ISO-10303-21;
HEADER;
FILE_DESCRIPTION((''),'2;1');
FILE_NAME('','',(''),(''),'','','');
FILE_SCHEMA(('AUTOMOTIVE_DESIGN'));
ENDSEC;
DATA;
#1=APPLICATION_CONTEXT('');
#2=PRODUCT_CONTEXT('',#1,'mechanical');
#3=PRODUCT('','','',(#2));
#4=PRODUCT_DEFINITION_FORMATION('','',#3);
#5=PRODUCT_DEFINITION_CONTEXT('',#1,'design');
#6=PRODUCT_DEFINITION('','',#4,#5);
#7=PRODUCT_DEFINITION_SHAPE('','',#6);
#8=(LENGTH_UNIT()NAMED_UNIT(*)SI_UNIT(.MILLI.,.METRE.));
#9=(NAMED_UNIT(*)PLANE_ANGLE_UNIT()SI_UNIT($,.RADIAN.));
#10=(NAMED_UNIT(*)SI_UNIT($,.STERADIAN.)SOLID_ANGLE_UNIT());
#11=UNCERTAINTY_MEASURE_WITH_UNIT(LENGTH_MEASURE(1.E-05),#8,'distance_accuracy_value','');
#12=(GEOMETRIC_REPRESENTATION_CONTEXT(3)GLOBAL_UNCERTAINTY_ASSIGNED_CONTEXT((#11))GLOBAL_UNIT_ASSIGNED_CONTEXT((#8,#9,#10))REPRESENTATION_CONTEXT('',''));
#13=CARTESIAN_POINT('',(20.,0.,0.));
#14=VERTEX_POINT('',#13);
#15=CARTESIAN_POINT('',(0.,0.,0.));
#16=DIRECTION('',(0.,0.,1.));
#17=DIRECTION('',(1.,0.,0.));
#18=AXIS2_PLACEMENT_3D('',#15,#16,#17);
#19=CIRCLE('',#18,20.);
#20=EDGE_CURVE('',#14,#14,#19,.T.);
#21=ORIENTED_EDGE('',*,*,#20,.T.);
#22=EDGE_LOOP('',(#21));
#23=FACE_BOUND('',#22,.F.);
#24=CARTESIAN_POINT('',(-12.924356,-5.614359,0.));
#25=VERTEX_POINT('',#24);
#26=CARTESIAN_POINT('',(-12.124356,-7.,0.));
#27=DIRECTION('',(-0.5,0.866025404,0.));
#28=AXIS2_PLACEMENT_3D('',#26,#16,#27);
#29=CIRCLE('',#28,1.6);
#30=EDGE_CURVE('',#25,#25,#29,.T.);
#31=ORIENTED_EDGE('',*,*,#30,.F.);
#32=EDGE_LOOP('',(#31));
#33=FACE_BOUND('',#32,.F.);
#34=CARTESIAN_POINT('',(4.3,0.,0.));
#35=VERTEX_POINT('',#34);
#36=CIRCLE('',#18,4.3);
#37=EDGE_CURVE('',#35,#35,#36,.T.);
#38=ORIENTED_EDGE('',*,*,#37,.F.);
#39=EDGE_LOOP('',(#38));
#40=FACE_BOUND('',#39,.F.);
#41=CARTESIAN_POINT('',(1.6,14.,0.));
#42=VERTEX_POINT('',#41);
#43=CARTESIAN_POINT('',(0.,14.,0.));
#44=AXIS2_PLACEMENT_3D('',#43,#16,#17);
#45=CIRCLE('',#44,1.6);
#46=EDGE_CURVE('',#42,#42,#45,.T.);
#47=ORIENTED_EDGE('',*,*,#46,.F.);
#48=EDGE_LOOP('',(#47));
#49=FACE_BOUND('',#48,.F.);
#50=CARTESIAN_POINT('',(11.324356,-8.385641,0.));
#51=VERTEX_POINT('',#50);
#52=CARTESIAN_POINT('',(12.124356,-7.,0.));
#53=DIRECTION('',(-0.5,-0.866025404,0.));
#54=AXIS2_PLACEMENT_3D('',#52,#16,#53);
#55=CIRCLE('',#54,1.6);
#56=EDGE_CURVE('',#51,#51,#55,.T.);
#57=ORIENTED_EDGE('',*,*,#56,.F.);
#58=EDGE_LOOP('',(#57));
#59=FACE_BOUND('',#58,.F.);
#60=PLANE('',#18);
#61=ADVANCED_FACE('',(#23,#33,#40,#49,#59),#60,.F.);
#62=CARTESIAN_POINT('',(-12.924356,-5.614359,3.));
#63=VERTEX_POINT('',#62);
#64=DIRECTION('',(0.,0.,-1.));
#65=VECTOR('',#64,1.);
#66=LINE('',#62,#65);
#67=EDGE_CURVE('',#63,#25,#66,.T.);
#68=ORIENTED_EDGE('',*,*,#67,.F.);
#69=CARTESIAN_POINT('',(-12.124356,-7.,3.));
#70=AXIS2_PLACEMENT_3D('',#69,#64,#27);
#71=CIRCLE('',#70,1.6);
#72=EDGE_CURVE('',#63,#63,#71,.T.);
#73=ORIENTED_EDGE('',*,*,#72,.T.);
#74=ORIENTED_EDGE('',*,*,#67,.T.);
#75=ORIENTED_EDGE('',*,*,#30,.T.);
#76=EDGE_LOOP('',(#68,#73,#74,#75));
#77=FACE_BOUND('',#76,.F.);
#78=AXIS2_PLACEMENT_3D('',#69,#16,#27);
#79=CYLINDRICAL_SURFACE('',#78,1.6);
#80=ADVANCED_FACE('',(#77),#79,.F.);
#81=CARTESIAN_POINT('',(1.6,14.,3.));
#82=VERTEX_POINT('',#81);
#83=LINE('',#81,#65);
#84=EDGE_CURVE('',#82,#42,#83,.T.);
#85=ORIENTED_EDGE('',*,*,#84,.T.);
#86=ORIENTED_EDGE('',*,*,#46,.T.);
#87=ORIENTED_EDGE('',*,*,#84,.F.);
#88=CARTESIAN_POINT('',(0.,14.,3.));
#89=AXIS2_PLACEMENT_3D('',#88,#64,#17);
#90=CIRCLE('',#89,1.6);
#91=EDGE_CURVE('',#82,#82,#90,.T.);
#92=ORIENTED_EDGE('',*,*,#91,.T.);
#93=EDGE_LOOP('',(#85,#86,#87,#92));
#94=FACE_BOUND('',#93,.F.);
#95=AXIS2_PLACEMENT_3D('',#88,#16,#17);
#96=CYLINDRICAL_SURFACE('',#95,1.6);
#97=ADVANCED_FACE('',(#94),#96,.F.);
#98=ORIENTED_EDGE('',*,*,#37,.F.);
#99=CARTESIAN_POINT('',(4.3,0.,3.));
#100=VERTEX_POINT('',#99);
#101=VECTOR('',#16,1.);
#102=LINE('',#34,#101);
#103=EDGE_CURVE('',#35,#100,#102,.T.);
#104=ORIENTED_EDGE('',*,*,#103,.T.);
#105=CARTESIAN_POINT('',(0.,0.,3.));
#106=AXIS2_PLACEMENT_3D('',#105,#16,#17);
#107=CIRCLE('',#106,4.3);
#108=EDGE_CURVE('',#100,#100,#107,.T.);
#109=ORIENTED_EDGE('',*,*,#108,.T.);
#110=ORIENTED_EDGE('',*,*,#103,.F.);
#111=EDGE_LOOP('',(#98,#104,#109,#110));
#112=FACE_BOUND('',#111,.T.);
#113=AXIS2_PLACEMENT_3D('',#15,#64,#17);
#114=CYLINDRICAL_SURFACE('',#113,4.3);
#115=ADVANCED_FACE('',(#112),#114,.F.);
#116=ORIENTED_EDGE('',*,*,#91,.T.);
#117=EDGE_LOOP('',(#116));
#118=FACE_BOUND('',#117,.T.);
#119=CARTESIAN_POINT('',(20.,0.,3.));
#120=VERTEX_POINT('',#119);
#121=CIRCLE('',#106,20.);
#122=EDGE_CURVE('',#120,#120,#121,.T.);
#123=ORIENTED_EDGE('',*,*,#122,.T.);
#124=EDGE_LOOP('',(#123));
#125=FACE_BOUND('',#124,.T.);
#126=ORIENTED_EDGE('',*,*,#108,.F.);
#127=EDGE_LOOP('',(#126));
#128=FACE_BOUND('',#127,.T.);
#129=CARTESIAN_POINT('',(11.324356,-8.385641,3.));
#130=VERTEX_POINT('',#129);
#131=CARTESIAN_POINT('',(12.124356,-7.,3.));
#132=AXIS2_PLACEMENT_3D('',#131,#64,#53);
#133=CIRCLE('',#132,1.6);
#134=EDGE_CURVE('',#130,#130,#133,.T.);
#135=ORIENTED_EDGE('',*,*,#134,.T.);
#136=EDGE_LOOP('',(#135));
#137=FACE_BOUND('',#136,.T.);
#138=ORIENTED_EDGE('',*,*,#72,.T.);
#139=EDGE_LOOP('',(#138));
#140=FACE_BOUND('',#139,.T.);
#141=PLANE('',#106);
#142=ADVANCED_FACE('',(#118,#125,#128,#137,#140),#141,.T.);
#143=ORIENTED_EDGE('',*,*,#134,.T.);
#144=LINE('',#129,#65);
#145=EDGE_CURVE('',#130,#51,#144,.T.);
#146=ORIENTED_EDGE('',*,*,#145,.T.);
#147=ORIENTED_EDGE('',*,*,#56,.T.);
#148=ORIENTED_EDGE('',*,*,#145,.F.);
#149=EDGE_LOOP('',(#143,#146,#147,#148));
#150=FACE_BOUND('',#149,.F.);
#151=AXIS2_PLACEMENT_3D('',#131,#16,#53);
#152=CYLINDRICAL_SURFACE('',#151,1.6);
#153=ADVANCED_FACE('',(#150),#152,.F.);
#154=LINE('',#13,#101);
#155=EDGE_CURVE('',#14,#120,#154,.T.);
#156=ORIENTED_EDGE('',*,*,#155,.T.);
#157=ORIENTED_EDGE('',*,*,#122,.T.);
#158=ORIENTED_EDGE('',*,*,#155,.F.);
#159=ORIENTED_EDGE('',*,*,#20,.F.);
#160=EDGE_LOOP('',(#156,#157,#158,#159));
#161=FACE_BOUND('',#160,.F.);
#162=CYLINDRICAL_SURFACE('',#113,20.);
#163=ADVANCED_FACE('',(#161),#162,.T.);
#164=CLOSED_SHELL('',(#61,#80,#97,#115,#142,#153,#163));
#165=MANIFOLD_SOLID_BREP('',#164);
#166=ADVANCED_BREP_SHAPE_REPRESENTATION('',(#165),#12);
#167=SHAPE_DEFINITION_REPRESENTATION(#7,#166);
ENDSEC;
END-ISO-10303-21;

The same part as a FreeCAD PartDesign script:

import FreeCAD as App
import Part
import Sketcher
from FreeCAD import Vector
Q = App.Units.Quantity

doc = App.newDocument("Part")
body = doc.addObject("PartDesign::Body", "Body")

# Sketch on XY plane
sketch1 = body.newObject("Sketcher::SketchObject", "Sketch")
sketch1.AttachmentSupport = (doc.getObject("XY_Plane"), [""])
sketch1.MapMode = "FlatFace"
sketch1.addGeometry(Part.Circle(Vector(0, 0, 0), Vector(0, 0, 1), 20), False)
sketch1.addGeometry(Part.Circle(Vector(0, 0, 0), Vector(0, 0, 1), 4.3), False)
sketch1.addConstraint(Sketcher.Constraint("Coincident", 0, 3, -1, 1))
sketch1.addConstraint(Sketcher.Constraint("Coincident", 1, 3, -1, 1))
sketch1.addConstraint(Sketcher.Constraint("Diameter", 0, Q("40 mm")))
sketch1.addConstraint(Sketcher.Constraint("Diameter", 1, Q("8.6 mm")))
pad1 = body.newObject("PartDesign::Pad", "Pad")
pad1.Profile = sketch1
pad1.Length = 3

# Sketch on XY plane
sketch2 = body.newObject("Sketcher::SketchObject", "Sketch001")
sketch2.AttachmentSupport = (doc.getObject("XY_Plane"), [""])
sketch2.MapMode = "FlatFace"
sketch2.AttachmentOffset = App.Placement(Vector(0, 0, 3), App.Rotation())
sketch2.addGeometry(Part.Circle(Vector(0, 14, 0), Vector(0, 0, 1), 1.6), False)
sketch2.addConstraint(Sketcher.Constraint("PointOnObject", 0, 3, -2))
sketch2.addConstraint(Sketcher.Constraint("Diameter", 0, Q("3.2 mm")))
sketch2.addConstraint(Sketcher.Constraint("DistanceY", -1, 1, 0, 3, Q("14 mm")))
pocket1 = body.newObject("PartDesign::Pocket", "Pocket")
pocket1.Profile = sketch2
pocket1.Length = 10
doc.recompute()

polarpattern = body.newObject("PartDesign::PolarPattern", "PolarPattern")
polarpattern.Originals = [pocket1]
polarpattern.Axis = (doc.getObject("Z_Axis"), [""])
polarpattern.Angle = 360
polarpattern.Occurrences = 3
body.Tip = polarpattern

doc.recompute()
